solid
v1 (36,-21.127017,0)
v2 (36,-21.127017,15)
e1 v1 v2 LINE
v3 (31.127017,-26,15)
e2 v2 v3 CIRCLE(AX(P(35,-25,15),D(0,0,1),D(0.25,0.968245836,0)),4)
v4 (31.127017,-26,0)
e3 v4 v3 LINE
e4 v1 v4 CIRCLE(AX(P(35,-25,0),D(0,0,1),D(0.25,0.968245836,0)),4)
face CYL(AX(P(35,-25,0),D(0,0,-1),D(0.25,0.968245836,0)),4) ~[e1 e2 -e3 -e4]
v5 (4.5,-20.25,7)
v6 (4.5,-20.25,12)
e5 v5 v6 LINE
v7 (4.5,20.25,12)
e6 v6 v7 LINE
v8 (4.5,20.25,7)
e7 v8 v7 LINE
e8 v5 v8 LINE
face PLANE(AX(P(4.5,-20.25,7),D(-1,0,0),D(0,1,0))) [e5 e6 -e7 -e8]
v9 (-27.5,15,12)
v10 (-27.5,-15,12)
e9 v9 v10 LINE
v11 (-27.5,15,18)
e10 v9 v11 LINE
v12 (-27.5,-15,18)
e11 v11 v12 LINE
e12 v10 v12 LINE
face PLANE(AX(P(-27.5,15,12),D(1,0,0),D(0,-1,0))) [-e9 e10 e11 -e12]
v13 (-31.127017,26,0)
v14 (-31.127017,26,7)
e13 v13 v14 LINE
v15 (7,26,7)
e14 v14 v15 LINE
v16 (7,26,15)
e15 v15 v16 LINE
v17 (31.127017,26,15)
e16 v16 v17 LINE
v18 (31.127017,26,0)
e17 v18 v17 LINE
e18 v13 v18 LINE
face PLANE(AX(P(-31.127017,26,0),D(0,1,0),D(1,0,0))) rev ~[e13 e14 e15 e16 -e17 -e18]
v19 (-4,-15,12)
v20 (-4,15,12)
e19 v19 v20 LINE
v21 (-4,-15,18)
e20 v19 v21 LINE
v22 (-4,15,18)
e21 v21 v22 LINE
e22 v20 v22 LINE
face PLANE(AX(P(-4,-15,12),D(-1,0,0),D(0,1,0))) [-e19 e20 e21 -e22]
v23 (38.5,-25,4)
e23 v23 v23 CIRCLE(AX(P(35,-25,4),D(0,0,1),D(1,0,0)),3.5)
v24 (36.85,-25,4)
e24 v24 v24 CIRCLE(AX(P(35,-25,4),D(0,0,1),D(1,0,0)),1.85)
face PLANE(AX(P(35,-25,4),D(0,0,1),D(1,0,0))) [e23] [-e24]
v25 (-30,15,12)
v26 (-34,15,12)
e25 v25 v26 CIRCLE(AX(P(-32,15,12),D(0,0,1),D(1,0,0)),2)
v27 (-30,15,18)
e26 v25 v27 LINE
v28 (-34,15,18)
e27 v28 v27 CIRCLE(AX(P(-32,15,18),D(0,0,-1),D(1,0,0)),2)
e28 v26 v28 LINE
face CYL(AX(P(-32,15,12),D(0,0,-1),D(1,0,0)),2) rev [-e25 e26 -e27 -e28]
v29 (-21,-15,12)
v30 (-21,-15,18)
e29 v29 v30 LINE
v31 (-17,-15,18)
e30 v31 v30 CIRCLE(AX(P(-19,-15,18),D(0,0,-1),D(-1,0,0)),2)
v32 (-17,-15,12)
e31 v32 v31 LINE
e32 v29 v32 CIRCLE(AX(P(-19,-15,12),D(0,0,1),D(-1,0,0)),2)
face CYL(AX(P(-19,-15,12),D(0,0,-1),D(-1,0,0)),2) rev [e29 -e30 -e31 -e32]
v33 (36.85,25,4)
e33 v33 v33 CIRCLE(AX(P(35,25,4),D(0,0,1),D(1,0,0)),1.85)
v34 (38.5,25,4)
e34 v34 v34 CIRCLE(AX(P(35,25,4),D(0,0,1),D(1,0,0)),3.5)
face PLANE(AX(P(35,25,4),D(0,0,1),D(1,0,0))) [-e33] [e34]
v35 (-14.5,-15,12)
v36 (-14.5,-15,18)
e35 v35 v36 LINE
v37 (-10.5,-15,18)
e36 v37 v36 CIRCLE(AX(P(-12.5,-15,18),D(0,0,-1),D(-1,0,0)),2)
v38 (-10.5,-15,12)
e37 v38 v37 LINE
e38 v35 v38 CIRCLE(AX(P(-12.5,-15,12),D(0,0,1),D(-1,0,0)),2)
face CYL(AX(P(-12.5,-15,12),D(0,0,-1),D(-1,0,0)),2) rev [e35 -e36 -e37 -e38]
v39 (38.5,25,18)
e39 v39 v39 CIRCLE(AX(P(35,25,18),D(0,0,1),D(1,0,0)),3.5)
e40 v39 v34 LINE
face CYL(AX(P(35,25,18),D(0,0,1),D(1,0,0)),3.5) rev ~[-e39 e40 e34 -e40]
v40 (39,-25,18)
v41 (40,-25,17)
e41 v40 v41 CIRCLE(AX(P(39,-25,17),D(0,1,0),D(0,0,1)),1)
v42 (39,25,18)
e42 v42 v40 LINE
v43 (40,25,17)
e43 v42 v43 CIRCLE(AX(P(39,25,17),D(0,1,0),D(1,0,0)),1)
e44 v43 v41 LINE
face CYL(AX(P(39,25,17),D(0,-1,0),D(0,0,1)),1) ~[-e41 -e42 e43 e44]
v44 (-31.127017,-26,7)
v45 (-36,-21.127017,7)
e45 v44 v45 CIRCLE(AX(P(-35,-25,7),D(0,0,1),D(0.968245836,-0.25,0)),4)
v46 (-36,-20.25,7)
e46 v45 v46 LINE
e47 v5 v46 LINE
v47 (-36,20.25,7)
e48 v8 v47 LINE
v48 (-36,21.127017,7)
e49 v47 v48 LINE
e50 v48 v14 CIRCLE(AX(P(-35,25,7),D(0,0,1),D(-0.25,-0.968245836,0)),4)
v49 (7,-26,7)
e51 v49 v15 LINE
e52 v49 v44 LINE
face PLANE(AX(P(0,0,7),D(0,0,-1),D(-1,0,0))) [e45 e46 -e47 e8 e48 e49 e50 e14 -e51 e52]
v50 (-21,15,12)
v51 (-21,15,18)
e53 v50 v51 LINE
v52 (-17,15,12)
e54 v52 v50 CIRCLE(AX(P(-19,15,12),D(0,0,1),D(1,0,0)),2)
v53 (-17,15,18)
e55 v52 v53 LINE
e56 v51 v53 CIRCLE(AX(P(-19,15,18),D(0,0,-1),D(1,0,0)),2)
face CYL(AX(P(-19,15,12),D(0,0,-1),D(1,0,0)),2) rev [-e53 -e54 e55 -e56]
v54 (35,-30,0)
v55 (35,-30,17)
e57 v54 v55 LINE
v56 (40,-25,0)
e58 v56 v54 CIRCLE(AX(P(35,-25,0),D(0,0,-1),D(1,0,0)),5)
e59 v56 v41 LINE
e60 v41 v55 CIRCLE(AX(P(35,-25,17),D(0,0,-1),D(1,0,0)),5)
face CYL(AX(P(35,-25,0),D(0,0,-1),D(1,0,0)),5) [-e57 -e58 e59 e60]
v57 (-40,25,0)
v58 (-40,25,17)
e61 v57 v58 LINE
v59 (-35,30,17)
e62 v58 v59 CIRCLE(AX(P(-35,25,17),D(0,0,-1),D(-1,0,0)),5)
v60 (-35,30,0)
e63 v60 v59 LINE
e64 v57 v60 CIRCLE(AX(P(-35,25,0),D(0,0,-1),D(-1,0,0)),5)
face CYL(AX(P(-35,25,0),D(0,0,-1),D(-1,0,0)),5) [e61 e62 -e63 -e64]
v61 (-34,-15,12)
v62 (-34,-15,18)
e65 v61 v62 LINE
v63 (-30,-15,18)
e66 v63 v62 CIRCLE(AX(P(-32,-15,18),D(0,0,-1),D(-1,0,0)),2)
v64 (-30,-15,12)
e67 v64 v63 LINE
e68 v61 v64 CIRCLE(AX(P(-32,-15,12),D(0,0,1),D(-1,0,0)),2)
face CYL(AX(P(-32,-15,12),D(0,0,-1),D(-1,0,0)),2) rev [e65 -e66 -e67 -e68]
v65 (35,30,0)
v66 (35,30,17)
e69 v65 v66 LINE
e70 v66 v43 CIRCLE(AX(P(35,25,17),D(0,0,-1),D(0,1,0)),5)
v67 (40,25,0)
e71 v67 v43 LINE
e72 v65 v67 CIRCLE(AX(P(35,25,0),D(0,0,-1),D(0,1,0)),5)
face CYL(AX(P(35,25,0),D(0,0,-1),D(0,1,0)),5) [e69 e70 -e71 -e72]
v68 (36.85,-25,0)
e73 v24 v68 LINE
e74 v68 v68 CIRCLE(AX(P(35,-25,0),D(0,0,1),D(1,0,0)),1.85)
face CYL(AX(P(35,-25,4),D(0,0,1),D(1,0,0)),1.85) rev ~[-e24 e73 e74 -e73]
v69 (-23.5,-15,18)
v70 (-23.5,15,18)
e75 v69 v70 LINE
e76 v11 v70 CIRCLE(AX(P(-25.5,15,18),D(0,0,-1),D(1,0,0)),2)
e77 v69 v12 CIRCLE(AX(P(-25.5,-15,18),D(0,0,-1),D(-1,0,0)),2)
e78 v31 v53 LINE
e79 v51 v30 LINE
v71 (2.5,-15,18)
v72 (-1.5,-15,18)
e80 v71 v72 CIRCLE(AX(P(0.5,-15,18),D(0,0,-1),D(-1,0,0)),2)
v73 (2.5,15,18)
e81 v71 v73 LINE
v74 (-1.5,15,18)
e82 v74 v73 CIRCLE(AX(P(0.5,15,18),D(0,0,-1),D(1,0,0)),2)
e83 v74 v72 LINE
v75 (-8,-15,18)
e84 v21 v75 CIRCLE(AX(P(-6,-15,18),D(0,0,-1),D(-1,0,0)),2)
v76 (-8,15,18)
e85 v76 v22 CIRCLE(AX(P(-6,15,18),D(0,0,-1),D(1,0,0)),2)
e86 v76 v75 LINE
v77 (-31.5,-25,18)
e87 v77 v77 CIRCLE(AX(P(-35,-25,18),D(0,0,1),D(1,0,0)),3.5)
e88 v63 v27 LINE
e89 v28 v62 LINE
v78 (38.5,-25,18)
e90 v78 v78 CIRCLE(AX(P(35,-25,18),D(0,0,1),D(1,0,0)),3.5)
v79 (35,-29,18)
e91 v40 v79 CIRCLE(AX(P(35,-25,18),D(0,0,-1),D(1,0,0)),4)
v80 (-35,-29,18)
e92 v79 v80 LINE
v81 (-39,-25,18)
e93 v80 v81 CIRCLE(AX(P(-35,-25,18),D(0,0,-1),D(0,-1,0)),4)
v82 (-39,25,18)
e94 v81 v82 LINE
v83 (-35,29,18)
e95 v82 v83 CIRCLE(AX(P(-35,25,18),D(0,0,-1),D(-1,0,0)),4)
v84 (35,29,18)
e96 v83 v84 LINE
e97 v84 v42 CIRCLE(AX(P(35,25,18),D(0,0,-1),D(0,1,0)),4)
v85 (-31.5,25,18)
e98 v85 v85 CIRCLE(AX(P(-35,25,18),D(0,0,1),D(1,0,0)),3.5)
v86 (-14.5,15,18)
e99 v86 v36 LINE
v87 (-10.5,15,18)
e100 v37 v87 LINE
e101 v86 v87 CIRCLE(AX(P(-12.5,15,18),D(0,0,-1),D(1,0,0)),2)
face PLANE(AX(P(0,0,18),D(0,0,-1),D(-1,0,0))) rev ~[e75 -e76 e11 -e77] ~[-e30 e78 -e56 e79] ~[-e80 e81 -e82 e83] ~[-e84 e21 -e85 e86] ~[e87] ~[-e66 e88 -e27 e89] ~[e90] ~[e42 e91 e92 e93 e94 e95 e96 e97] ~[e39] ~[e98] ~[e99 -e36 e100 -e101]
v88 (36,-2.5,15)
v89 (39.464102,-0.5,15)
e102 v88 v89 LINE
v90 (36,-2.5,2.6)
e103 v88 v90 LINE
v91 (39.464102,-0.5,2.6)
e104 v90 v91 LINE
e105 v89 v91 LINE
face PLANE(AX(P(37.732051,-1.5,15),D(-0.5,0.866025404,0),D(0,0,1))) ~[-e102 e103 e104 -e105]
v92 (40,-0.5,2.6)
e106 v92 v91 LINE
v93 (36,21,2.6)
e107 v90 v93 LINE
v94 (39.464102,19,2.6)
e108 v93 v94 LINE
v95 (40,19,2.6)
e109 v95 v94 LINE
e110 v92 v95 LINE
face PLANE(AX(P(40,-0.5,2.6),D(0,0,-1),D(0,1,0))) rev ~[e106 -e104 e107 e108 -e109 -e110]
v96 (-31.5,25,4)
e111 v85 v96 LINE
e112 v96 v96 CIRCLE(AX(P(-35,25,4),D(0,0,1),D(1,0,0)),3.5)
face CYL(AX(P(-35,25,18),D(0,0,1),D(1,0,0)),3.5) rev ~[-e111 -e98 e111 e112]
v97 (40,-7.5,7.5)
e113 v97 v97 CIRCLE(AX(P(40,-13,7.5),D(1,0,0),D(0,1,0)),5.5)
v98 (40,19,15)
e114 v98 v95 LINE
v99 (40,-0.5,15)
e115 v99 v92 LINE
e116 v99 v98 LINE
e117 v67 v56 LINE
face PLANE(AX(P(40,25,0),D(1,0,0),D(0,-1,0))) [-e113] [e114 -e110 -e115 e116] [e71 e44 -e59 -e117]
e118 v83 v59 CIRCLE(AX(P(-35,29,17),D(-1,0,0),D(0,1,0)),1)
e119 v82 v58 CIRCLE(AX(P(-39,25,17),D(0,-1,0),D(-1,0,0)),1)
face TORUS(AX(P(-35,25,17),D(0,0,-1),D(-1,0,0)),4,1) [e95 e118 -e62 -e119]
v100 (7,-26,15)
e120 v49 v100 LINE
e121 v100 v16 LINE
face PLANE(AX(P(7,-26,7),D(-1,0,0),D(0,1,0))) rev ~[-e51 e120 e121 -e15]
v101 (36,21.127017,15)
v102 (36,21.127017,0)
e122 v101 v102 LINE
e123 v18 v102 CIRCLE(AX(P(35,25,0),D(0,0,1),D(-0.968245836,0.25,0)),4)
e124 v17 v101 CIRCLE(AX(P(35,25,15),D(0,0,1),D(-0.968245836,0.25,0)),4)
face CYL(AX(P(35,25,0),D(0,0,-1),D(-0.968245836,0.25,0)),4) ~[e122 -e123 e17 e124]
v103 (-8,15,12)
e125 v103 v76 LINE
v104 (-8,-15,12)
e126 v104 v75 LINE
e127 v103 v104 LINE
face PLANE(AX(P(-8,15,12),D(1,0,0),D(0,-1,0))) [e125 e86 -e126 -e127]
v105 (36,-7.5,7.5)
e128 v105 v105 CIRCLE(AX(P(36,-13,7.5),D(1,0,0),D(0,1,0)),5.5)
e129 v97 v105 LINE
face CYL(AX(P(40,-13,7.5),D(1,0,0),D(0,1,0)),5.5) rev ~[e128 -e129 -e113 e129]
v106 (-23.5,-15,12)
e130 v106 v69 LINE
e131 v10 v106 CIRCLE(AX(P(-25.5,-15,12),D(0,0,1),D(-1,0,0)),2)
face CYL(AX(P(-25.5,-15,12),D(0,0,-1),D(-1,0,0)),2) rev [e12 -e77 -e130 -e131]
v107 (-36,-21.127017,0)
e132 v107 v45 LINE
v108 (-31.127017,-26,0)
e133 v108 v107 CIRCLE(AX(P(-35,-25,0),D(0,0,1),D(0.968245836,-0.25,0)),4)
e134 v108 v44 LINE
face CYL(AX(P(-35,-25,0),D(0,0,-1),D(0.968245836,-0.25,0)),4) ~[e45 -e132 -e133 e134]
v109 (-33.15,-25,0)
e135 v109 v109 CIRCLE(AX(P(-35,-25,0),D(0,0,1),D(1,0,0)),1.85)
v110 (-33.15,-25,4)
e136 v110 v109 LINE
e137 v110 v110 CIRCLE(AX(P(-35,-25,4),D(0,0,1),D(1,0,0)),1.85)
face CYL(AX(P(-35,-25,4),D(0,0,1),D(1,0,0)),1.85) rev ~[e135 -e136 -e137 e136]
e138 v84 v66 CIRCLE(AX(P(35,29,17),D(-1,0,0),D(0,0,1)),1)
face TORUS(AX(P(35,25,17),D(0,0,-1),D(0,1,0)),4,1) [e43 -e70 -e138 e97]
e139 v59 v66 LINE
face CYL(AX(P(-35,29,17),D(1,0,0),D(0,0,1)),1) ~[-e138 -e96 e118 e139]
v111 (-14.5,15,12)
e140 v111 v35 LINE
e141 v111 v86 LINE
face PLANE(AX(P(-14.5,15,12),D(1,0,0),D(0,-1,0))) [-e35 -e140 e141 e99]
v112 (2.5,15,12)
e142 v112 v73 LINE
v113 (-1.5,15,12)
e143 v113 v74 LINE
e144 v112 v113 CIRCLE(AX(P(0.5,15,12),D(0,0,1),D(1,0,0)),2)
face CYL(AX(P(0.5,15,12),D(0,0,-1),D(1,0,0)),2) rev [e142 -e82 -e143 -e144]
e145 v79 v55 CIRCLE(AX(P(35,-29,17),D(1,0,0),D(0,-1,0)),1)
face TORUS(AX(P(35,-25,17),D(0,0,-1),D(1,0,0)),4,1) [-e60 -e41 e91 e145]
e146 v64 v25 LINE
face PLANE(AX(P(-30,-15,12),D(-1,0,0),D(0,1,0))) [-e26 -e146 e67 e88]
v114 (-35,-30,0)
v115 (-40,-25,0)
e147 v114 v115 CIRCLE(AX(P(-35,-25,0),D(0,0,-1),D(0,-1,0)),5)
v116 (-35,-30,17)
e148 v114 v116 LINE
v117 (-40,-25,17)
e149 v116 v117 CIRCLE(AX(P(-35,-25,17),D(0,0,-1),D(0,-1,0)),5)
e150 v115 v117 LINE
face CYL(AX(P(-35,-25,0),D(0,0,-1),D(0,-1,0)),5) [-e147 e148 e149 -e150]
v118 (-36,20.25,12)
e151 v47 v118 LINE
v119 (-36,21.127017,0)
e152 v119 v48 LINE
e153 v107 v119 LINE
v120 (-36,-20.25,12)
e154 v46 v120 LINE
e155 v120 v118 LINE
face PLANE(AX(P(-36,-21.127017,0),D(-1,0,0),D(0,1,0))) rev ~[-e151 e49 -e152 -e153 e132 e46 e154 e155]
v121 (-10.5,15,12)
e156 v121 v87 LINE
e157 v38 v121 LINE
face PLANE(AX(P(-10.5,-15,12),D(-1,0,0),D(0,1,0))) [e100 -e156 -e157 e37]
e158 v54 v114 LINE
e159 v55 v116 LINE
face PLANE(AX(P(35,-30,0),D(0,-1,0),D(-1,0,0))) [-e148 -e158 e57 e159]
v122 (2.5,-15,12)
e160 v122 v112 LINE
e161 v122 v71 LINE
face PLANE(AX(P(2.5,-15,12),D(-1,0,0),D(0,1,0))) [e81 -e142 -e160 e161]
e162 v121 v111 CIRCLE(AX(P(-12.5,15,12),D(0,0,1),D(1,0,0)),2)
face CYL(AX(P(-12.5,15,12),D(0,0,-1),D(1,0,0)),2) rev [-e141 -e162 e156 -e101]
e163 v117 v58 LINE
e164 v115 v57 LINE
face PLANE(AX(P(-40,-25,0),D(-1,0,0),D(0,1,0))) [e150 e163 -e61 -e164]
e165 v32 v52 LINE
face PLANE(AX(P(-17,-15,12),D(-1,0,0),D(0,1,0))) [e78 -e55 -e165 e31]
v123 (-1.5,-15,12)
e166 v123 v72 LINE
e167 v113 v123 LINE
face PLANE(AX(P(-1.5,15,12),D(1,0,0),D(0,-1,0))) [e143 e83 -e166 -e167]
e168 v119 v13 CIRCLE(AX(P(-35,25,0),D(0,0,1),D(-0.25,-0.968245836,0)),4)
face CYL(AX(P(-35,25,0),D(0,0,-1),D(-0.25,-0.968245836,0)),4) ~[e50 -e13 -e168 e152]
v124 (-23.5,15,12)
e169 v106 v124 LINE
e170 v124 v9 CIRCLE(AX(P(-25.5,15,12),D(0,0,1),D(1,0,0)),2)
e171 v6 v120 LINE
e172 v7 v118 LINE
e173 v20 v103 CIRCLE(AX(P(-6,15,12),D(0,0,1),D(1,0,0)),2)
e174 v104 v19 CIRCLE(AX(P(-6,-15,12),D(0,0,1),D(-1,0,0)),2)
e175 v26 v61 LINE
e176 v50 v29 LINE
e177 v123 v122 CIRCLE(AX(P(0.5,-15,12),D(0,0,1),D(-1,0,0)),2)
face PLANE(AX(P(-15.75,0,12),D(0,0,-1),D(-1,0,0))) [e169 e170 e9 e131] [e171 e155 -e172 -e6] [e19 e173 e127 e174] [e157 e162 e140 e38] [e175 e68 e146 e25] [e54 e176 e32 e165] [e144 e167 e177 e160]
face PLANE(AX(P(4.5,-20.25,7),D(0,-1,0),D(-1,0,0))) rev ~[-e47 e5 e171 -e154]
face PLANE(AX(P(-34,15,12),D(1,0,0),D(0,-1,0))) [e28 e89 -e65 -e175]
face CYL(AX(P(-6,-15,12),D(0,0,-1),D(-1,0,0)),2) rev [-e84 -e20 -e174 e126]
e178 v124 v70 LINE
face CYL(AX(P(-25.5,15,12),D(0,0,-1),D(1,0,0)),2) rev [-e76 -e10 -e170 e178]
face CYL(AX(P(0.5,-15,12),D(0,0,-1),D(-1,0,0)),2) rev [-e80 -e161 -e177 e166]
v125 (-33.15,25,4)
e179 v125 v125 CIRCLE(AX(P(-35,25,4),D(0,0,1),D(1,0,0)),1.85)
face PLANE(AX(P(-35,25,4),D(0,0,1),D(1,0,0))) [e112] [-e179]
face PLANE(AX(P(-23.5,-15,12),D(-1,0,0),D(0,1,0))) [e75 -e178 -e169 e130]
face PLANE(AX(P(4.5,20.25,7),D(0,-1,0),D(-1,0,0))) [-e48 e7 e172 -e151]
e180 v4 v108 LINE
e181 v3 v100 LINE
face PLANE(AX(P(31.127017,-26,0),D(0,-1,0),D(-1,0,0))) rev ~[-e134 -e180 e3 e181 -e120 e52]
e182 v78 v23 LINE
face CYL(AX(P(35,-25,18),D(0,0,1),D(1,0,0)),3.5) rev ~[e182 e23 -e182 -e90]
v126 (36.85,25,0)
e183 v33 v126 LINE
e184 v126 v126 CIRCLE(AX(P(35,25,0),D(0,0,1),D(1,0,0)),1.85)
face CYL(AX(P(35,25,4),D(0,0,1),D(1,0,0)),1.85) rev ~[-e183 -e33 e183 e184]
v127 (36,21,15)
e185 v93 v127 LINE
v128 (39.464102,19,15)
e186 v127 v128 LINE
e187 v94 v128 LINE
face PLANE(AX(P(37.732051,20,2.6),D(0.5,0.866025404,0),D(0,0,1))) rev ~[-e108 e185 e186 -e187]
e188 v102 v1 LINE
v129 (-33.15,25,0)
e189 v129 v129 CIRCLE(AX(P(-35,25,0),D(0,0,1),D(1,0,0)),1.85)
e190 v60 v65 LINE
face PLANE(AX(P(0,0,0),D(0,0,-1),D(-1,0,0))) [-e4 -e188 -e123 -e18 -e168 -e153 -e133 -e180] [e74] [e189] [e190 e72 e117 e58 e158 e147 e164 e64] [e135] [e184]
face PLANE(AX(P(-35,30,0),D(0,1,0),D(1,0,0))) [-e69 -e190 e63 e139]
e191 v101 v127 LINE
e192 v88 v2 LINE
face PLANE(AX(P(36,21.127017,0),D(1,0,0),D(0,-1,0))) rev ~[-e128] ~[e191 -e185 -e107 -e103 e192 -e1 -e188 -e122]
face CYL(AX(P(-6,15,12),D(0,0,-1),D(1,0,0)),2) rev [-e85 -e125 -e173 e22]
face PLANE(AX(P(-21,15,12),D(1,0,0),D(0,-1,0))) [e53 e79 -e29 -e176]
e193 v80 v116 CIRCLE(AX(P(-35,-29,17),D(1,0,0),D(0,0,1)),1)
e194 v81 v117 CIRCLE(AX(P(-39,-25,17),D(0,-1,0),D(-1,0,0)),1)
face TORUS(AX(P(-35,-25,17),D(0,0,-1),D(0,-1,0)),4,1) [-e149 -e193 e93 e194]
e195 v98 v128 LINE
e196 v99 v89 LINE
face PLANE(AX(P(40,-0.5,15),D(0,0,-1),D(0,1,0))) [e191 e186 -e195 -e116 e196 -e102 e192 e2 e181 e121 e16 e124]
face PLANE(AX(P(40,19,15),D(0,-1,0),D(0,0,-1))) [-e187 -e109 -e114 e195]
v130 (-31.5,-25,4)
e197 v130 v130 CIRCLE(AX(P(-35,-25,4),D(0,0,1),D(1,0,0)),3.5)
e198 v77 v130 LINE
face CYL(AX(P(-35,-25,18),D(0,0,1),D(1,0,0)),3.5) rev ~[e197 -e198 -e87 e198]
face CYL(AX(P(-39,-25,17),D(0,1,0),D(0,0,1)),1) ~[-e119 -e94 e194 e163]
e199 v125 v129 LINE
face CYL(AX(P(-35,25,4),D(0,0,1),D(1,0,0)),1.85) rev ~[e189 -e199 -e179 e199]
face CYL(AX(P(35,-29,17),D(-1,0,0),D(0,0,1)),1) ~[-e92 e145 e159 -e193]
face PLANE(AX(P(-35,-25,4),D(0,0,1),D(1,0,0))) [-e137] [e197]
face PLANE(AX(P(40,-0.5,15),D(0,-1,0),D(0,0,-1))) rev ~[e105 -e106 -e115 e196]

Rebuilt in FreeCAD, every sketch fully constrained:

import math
import FreeCAD as App
import Part
import Sketcher

V = App.Vector
Q = App.Units.Quantity


def edges_at(feature, points):
    """Names of the edges that pass closest to the given points."""
    edges = feature.Shape.Edges
    near = lambda p: min(range(len(edges)), key=lambda i: edges[i].distToShape(Part.Vertex(*p))[0])
    return sorted({f"Edge{near(p) + 1}" for p in points})

doc = App.newDocument("Part")
body = doc.addObject("PartDesign::Body", "Body")

# Sketch on XY plane
sketch1 = body.newObject("Sketcher::SketchObject", "Sketch")
sketch1.AttachmentSupport = (doc.getObject("XY_Plane"), [""])
sketch1.MapMode = "FlatFace"
sketch1.addGeometry(Part.LineSegment(V(35, 30, 0), V(-35, 30, 0)), False)
sketch1.addGeometry(Part.ArcOfCircle(Part.Circle(V(-35, 25, 0), V(0, 0, 1), 5), math.radians(90), math.radians(180)), False)
sketch1.addGeometry(Part.LineSegment(V(-40, 25, 0), V(-40, -25, 0)), False)
sketch1.addGeometry(Part.ArcOfCircle(Part.Circle(V(-35, -25, 0), V(0, 0, 1), 5), math.radians(180), math.radians(270)), False)
sketch1.addGeometry(Part.LineSegment(V(-35, -30, 0), V(35, -30, 0)), False)
sketch1.addGeometry(Part.ArcOfCircle(Part.Circle(V(35, -25, 0), V(0, 0, 1), 5), math.radians(-90), math.radians(0)), False)
sketch1.addGeometry(Part.LineSegment(V(40, -25, 0), V(40, 25, 0)), False)
sketch1.addGeometry(Part.ArcOfCircle(Part.Circle(V(35, 25, 0), V(0, 0, 1), 5), math.radians(0), math.radians(90)), False)
sketch1.addConstraint(Sketcher.Constraint("Tangent", 0, 2, 1, 1))
sketch1.addConstraint(Sketcher.Constraint("Tangent", 1, 2, 2, 1))
sketch1.addConstraint(Sketcher.Constraint("Tangent", 2, 2, 3, 1))
sketch1.addConstraint(Sketcher.Constraint("Tangent", 3, 2, 4, 1))
sketch1.addConstraint(Sketcher.Constraint("Tangent", 4, 2, 5, 1))
sketch1.addConstraint(Sketcher.Constraint("Tangent", 5, 2, 6, 1))
sketch1.addConstraint(Sketcher.Constraint("Tangent", 6, 2, 7, 1))
sketch1.addConstraint(Sketcher.Constraint("Tangent", 7, 2, 0, 1))
sketch1.addConstraint(Sketcher.Constraint("Horizontal", 0))
sketch1.addConstraint(Sketcher.Constraint("Vertical", 2))
sketch1.addConstraint(Sketcher.Constraint("Horizontal", 4))
sketch1.addConstraint(Sketcher.Constraint("Vertical", 6))
sketch1.addConstraint(Sketcher.Constraint("Equal", 1, 3))
sketch1.addConstraint(Sketcher.Constraint("Equal", 3, 5))
sketch1.addConstraint(Sketcher.Constraint("Equal", 5, 7))
sketch1.addConstraint(Sketcher.Constraint("Symmetric", 1, 3, 5, 3, -1, 1))
sketch1.addConstraint(Sketcher.Constraint("Radius", 1, Q("5 mm")))
sketch1.addConstraint(Sketcher.Constraint("DistanceX", 0, 2, 0, 1, Q("70 mm")))
sketch1.addConstraint(Sketcher.Constraint("DistanceY", 2, 2, 2, 1, Q("50 mm")))
pad1 = body.newObject("PartDesign::Pad", "Pad")
pad1.Profile = sketch1
pad1.Length = 18

# Sketch on XY plane
sketch2 = body.newObject("Sketcher::SketchObject", "Sketch001")
sketch2.AttachmentSupport = (doc.getObject("XY_Plane"), [""])
sketch2.MapMode = "FlatFace"
sketch2.addGeometry(Part.LineSegment(V(36, 21.127017, 0), V(36, -21.127017, 0)), False)
sketch2.addGeometry(Part.ArcOfCircle(Part.Circle(V(35, -25, 0), V(0, 0, 1), 4), math.radians(75.522488), math.radians(194.477512)), False)
sketch2.addGeometry(Part.LineSegment(V(31.127017, -26, 0), V(-31.127017, -26, 0)), False)
sketch2.addGeometry(Part.ArcOfCircle(Part.Circle(V(-35, -25, 0), V(0, 0, 1), 4), math.radians(-14.477512), math.radians(104.477512)), False)
sketch2.addGeometry(Part.LineSegment(V(-36, -21.127017, 0), V(-36, 21.127017, 0)), False)
sketch2.addGeometry(Part.ArcOfCircle(Part.Circle(V(-35, 25, 0), V(0, 0, 1), 4), math.radians(-104.477512), math.radians(14.477512)), False)
sketch2.addGeometry(Part.LineSegment(V(-31.127017, 26, 0), V(31.127017, 26, 0)), False)
sketch2.addGeometry(Part.ArcOfCircle(Part.Circle(V(35, 25, 0), V(0, 0, 1), 4), math.radians(165.522488), math.radians(284.477512)), False)
sketch2.addConstraint(Sketcher.Constraint("Coincident", 0, 2, 1, 1))
sketch2.addConstraint(Sketcher.Constraint("Coincident", 1, 2, 2, 1))
sketch2.addConstraint(Sketcher.Constraint("Coincident", 2, 2, 3, 1))
sketch2.addConstraint(Sketcher.Constraint("Coincident", 3, 2, 4, 1))
sketch2.addConstraint(Sketcher.Constraint("Coincident", 4, 2, 5, 1))
sketch2.addConstraint(Sketcher.Constraint("Coincident", 5, 2, 6, 1))
sketch2.addConstraint(Sketcher.Constraint("Coincident", 6, 2, 7, 1))
sketch2.addConstraint(Sketcher.Constraint("Coincident", 7, 2, 0, 1))
sketch2.addConstraint(Sketcher.Constraint("Vertical", 0))
sketch2.addConstraint(Sketcher.Constraint("Horizontal", 2))
sketch2.addConstraint(Sketcher.Constraint("Vertical", 4))
sketch2.addConstraint(Sketcher.Constraint("Horizontal", 6))
sketch2.addConstraint(Sketcher.Constraint("Equal", 1, 3))
sketch2.addConstraint(Sketcher.Constraint("Equal", 3, 5))
sketch2.addConstraint(Sketcher.Constraint("Equal", 5, 7))
sketch2.addConstraint(Sketcher.Constraint("Symmetric", 1, 3, 5, 3, -1, 1))
sketch2.addConstraint(Sketcher.Constraint("Symmetric", 3, 3, 7, 3, -1, 1))
sketch2.addConstraint(Sketcher.Constraint("Symmetric", 1, 3, 3, 3, -2))
sketch2.addConstraint(Sketcher.Constraint("Horizontal", 0, 2, 3, 2))
sketch2.addConstraint(Sketcher.Constraint("Vertical", 2, 2, 5, 2))
sketch2.addConstraint(Sketcher.Constraint("Radius", 1, Q("4 mm")))
sketch2.addConstraint(Sketcher.Constraint("DistanceX", -1, 1, 1, 3, Q("35 mm")))
sketch2.addConstraint(Sketcher.Constraint("DistanceY", 1, 3, -1, 1, Q("25 mm")))
sketch2.addConstraint(Sketcher.Constraint("DistanceX", -1, 1, 0, 2, Q("36 mm")))
sketch2.addConstraint(Sketcher.Constraint("DistanceY", 1, 2, -1, 1, Q("26 mm")))
pocket1 = body.newObject("PartDesign::Pocket", "Pocket")
pocket1.Profile = sketch2
pocket1.Length = 7
pocket1.Reversed = True

# Sketch on YZ plane
sketch3 = body.newObject("Sketcher::SketchObject", "Sketch002")
sketch3.AttachmentSupport = (doc.getObject("YZ_Plane"), [""])
sketch3.MapMode = "FlatFace"
sketch3.AttachmentOffset = App.Placement(V(0, 0, 40), App.Rotation())
sketch3.addGeometry(Part.Circle(V(-13, 7.5, 0), V(0, 0, 1), 5.5), False)
sketch3.addGeometry(Part.LineSegment(V(19, 15, 0), V(-0.5, 15, 0)), False)
sketch3.addGeometry(Part.LineSegment(V(-0.5, 15, 0), V(-0.5, 2.6, 0)), False)
sketch3.addGeometry(Part.LineSegment(V(-0.5, 2.6, 0), V(19, 2.6, 0)), False)
sketch3.addGeometry(Part.LineSegment(V(19, 2.6, 0), V(19, 15, 0)), False)
sketch3.addConstraint(Sketcher.Constraint("Coincident", 1, 2, 2, 1))
sketch3.addConstraint(Sketcher.Constraint("Coincident", 2, 2, 3, 1))
sketch3.addConstraint(Sketcher.Constraint("Coincident", 3, 2, 4, 1))
sketch3.addConstraint(Sketcher.Constraint("Coincident", 4, 2, 1, 1))
sketch3.addConstraint(Sketcher.Constraint("Horizontal", 1))
sketch3.addConstraint(Sketcher.Constraint("Vertical", 2))
sketch3.addConstraint(Sketcher.Constraint("Horizontal", 3))
sketch3.addConstraint(Sketcher.Constraint("Vertical", 4))
sketch3.addConstraint(Sketcher.Constraint("Diameter", 0, Q("11 mm")))
sketch3.addConstraint(Sketcher.Constraint("DistanceX", 1, 2, 1, 1, Q("19.5 mm")))
sketch3.addConstraint(Sketcher.Constraint("DistanceY", 2, 2, 2, 1, Q("12.4 mm")))
sketch3.addConstraint(Sketcher.Constraint("DistanceX", 0, 3, -1, 1, Q("13 mm")))
sketch3.addConstraint(Sketcher.Constraint("DistanceY", -1, 1, 1, 2, Q("15 mm")))
sketch3.addConstraint(Sketcher.Constraint("DistanceX", -1, 1, 3, 2, Q("19 mm")))
sketch3.addConstraint(Sketcher.Constraint("DistanceY", -1, 1, 0, 3, Q("7.5 mm")))
pocket2 = body.newObject("PartDesign::Pocket", "Pocket001")
pocket2.Profile = sketch3
pocket2.Length = 22

# Sketch on XY plane
sketch4 = body.newObject("Sketcher::SketchObject", "Sketch003")
sketch4.AttachmentSupport = (doc.getObject("XY_Plane"), [""])
sketch4.MapMode = "FlatFace"
sketch4.AttachmentOffset = App.Placement(V(0, 0, 7), App.Rotation())
sketch4.addGeometry(Part.LineSegment(V(31.127017, -26, 0), V(7, -26, 0)), False)
sketch4.addGeometry(Part.LineSegment(V(7, -26, 0), V(7, 26, 0)), False)
sketch4.addGeometry(Part.LineSegment(V(7, 26, 0), V(31.127017, 26, 0)), False)
sketch4.addGeometry(Part.ArcOfCircle(Part.Circle(V(35, 25, 0), V(0, 0, 1), 4), math.radians(165.522488), math.radians(284.477512)), False)
sketch4.addGeometry(Part.LineSegment(V(36, 21.127017, 0), V(36, -21.127017, 0)), False)
sketch4.addGeometry(Part.ArcOfCircle(Part.Circle(V(35, -25, 0), V(0, 0, 1), 4), math.radians(75.522488), math.radians(194.477512)), False)
sketch4.addConstraint(Sketcher.Constraint("Coincident", 0, 2, 1, 1))
sketch4.addConstraint(Sketcher.Constraint("Coincident", 1, 2, 2, 1))
sketch4.addConstraint(Sketcher.Constraint("Coincident", 2, 2, 3, 1))
sketch4.addConstraint(Sketcher.Constraint("Coincident", 3, 2, 4, 1))
sketch4.addConstraint(Sketcher.Constraint("Coincident", 4, 2, 5, 1))
sketch4.addConstraint(Sketcher.Constraint("Coincident", 5, 2, 0, 1))
sketch4.addConstraint(Sketcher.Constraint("Horizontal", 0))
sketch4.addConstraint(Sketcher.Constraint("Vertical", 1))
sketch4.addConstraint(Sketcher.Constraint("Horizontal", 2))
sketch4.addConstraint(Sketcher.Constraint("Vertical", 4))
sketch4.addConstraint(Sketcher.Constraint("Equal", 3, 5))
sketch4.addConstraint(Sketcher.Constraint("Symmetric", 3, 3, 5, 3, -1))
sketch4.addConstraint(Sketcher.Constraint("Vertical", 2, 2, 5, 2))
sketch4.addConstraint(Sketcher.Constraint("Radius", 3, Q("4 mm")))
sketch4.addConstraint(Sketcher.Constraint("DistanceY", 1, 1, 1, 2, Q("52 mm")))
sketch4.addConstraint(Sketcher.Constraint("DistanceX", -1, 1, 3, 3, Q("35 mm")))
sketch4.addConstraint(Sketcher.Constraint("DistanceY", -1, 1, 3, 3, Q("25 mm")))
sketch4.addConstraint(Sketcher.Constraint("DistanceX", -1, 1, 0, 2, Q("7 mm")))
sketch4.addConstraint(Sketcher.Constraint("DistanceX", -1, 1, 3, 2, Q("36 mm")))
pocket3 = body.newObject("PartDesign::Pocket", "Pocket002")
pocket3.Profile = sketch4
pocket3.Length = 8
pocket3.Reversed = True
doc.recompute()

fillet = body.newObject("PartDesign::Fillet", "Fillet")
fillet.Base = (pocket3, edges_at(pocket3, [
    (-38.536, 28.536, 18),
    (-40, 0, 18),
    (-38.536, -28.536, 18),
    (0, -30, 18),
    (38.536, -28.536, 18),
    (40, 0, 18),
    (38.536, 28.536, 18),
    (0, 30, 18),
]))
fillet.Radius = 1

# Sketch on XY plane
sketch5 = body.newObject("Sketcher::SketchObject", "Sketch004")
sketch5.AttachmentSupport = (doc.getObject("XY_Plane"), [""])
sketch5.MapMode = "FlatFace"
sketch5.AttachmentOffset = App.Placement(V(0, 0, 7), App.Rotation())
sketch5.addGeometry(Part.LineSegment(V(4.5, 20.25, 0), V(4.5, -20.25, 0)), False)
sketch5.addGeometry(Part.LineSegment(V(4.5, -20.25, 0), V(-36, -20.25, 0)), False)
sketch5.addGeometry(Part.LineSegment(V(-36, -20.25, 0), V(-36, 20.25, 0)), False)
sketch5.addGeometry(Part.LineSegment(V(-36, 20.25, 0), V(4.5, 20.25, 0)), False)
sketch5.addConstraint(Sketcher.Constraint("Coincident", 0, 2, 1, 1))
sketch5.addConstraint(Sketcher.Constraint("Coincident", 1, 2, 2, 1))
sketch5.addConstraint(Sketcher.Constraint("Coincident", 2, 2, 3, 1))
sketch5.addConstraint(Sketcher.Constraint("Coincident", 3, 2, 0, 1))
sketch5.addConstraint(Sketcher.Constraint("Vertical", 0))
sketch5.addConstraint(Sketcher.Constraint("Horizontal", 1))
sketch5.addConstraint(Sketcher.Constraint("Vertical", 2))
sketch5.addConstraint(Sketcher.Constraint("Horizontal", 3))
sketch5.addConstraint(Sketcher.Constraint("Equal", 3, 0))
sketch5.addConstraint(Sketcher.Constraint("DistanceX", 1, 2, 1, 1, Q("40.5 mm")))
sketch5.addConstraint(Sketcher.Constraint("DistanceX", 1, 2, -1, 1, Q("36 mm")))
sketch5.addConstraint(Sketcher.Constraint("DistanceY", 0, 2, -1, 1, Q("20.25 mm")))
pocket4 = body.newObject("PartDesign::Pocket", "Pocket003")
pocket4.Profile = sketch5
pocket4.Length = 5
pocket4.Reversed = True

# Sketch on XY plane
sketch6 = body.newObject("Sketcher::SketchObject", "Sketch005")
sketch6.AttachmentSupport = (doc.getObject("XY_Plane"), [""])
sketch6.MapMode = "FlatFace"
sketch6.AttachmentOffset = App.Placement(V(0, 0, 12), App.Rotation())
sketch6.addGeometry(Part.LineSegment(V(-1.5, -15, 0), V(-1.5, 15, 0)), False)
sketch6.addGeometry(Part.ArcOfCircle(Part.Circle(V(0.5, 15, 0), V(0, 0, 1), 2), math.radians(0), math.radians(180)), False)
sketch6.addGeometry(Part.LineSegment(V(2.5, 15, 0), V(2.5, -15, 0)), False)
sketch6.addGeometry(Part.ArcOfCircle(Part.Circle(V(0.5, -15, 0), V(0, 0, 1), 2), math.radians(180), math.radians(360)), False)
sketch6.addGeometry(Part.LineSegment(V(-8, -15, 0), V(-8, 15, 0)), False)
sketch6.addGeometry(Part.ArcOfCircle(Part.Circle(V(-6, 15, 0), V(0, 0, 1), 2), math.radians(0), math.radians(180)), False)
sketch6.addGeometry(Part.LineSegment(V(-4, 15, 0), V(-4, -15, 0)), False)
sketch6.addGeometry(Part.ArcOfCircle(Part.Circle(V(-6, -15, 0), V(0, 0, 1), 2), math.radians(180), math.radians(360)), False)
sketch6.addGeometry(Part.LineSegment(V(-14.5, -15, 0), V(-14.5, 15, 0)), False)
sketch6.addGeometry(Part.ArcOfCircle(Part.Circle(V(-12.5, 15, 0), V(0, 0, 1), 2), math.radians(0), math.radians(180)), False)
sketch6.addGeometry(Part.LineSegment(V(-10.5, 15, 0), V(-10.5, -15, 0)), False)
sketch6.addGeometry(Part.ArcOfCircle(Part.Circle(V(-12.5, -15, 0), V(0, 0, 1), 2), math.radians(180), math.radians(360)), False)
sketch6.addGeometry(Part.LineSegment(V(-21, -15, 0), V(-21, 15, 0)), False)
sketch6.addGeometry(Part.ArcOfCircle(Part.Circle(V(-19, 15, 0), V(0, 0, 1), 2), math.radians(0), math.radians(180)), False)
sketch6.addGeometry(Part.LineSegment(V(-17, 15, 0), V(-17, -15, 0)), False)
sketch6.addGeometry(Part.ArcOfCircle(Part.Circle(V(-19, -15, 0), V(0, 0, 1), 2), math.radians(180), math.radians(360)), False)
sketch6.addGeometry(Part.LineSegment(V(-27.5, -15, 0), V(-27.5, 15, 0)), False)
sketch6.addGeometry(Part.ArcOfCircle(Part.Circle(V(-25.5, 15, 0), V(0, 0, 1), 2), math.radians(0), math.radians(180)), False)
sketch6.addGeometry(Part.LineSegment(V(-23.5, 15, 0), V(-23.5, -15, 0)), False)
sketch6.addGeometry(Part.ArcOfCircle(Part.Circle(V(-25.5, -15, 0), V(0, 0, 1), 2), math.radians(180), math.radians(360)), False)
sketch6.addGeometry(Part.LineSegment(V(-34, -15, 0), V(-34, 15, 0)), False)
sketch6.addGeometry(Part.ArcOfCircle(Part.Circle(V(-32, 15, 0), V(0, 0, 1), 2), math.radians(0), math.radians(180)), False)
sketch6.addGeometry(Part.LineSegment(V(-30, 15, 0), V(-30, -15, 0)), False)
sketch6.addGeometry(Part.ArcOfCircle(Part.Circle(V(-32, -15, 0), V(0, 0, 1), 2), math.radians(180), math.radians(360)), False)
sketch6.addConstraint(Sketcher.Constraint("Tangent", 0, 2, 1, 2))
sketch6.addConstraint(Sketcher.Constraint("Tangent", 1, 1, 2, 1))
sketch6.addConstraint(Sketcher.Constraint("Tangent", 2, 2, 3, 2))
sketch6.addConstraint(Sketcher.Constraint("Tangent", 3, 1, 0, 1))
sketch6.addConstraint(Sketcher.Constraint("Tangent", 4, 2, 5, 2))
sketch6.addConstraint(Sketcher.Constraint("Tangent", 5, 1, 6, 1))
sketch6.addConstraint(Sketcher.Constraint("Tangent", 6, 2, 7, 2))
sketch6.addConstraint(Sketcher.Constraint("Tangent", 7, 1, 4, 1))
sketch6.addConstraint(Sketcher.Constraint("Tangent", 8, 2, 9, 2))
sketch6.addConstraint(Sketcher.Constraint("Tangent", 9, 1, 10, 1))
sketch6.addConstraint(Sketcher.Constraint("Tangent", 10, 2, 11, 2))
sketch6.addConstraint(Sketcher.Constraint("Tangent", 11, 1, 8, 1))
sketch6.addConstraint(Sketcher.Constraint("Tangent", 12, 2, 13, 2))
sketch6.addConstraint(Sketcher.Constraint("Tangent", 13, 1, 14, 1))
sketch6.addConstraint(Sketcher.Constraint("Tangent", 14, 2, 15, 2))
sketch6.addConstraint(Sketcher.Constraint("Tangent", 15, 1, 12, 1))
sketch6.addConstraint(Sketcher.Constraint("Tangent", 16, 2, 17, 2))
sketch6.addConstraint(Sketcher.Constraint("Tangent", 17, 1, 18, 1))
sketch6.addConstraint(Sketcher.Constraint("Tangent", 18, 2, 19, 2))
sketch6.addConstraint(Sketcher.Constraint("Tangent", 19, 1, 16, 1))
sketch6.addConstraint(Sketcher.Constraint("Tangent", 20, 2, 21, 2))
sketch6.addConstraint(Sketcher.Constraint("Tangent", 21, 1, 22, 1))
sketch6.addConstraint(Sketcher.Constraint("Tangent", 22, 2, 23, 2))
sketch6.addConstraint(Sketcher.Constraint("Tangent", 23, 1, 20, 1))
sketch6.addConstraint(Sketcher.Constraint("Vertical", 0))
sketch6.addConstraint(Sketcher.Constraint("Vertical", 2))
sketch6.addConstraint(Sketcher.Constraint("Vertical", 4))
sketch6.addConstraint(Sketcher.Constraint("Vertical", 6))
sketch6.addConstraint(Sketcher.Constraint("Vertical", 8))
sketch6.addConstraint(Sketcher.Constraint("Vertical", 10))
sketch6.addConstraint(Sketcher.Constraint("Vertical", 12))
sketch6.addConstraint(Sketcher.Constraint("Vertical", 14))
sketch6.addConstraint(Sketcher.Constraint("Vertical", 16))
sketch6.addConstraint(Sketcher.Constraint("Vertical", 18))
sketch6.addConstraint(Sketcher.Constraint("Vertical", 20))
sketch6.addConstraint(Sketcher.Constraint("Vertical", 22))
sketch6.addConstraint(Sketcher.Constraint("Equal", 3, 5))
sketch6.addConstraint(Sketcher.Constraint("Equal", 7, 9))
sketch6.addConstraint(Sketcher.Constraint("Equal", 11, 13))
sketch6.addConstraint(Sketcher.Constraint("Equal", 15, 17))
sketch6.addConstraint(Sketcher.Constraint("Equal", 19, 21))
sketch6.addConstraint(Sketcher.Constraint("Horizontal", 1, 3, 5, 3))
sketch6.addConstraint(Sketcher.Constraint("Horizontal", 3, 3, 7, 3))
sketch6.addConstraint(Sketcher.Constraint("Horizontal", 5, 3, 9, 3))
sketch6.addConstraint(Sketcher.Constraint("Horizontal", 7, 3, 11, 3))
sketch6.addConstraint(Sketcher.Constraint("Horizontal", 9, 3, 13, 3))
sketch6.addConstraint(Sketcher.Constraint("Horizontal", 11, 3, 15, 3))
sketch6.addConstraint(Sketcher.Constraint("Horizontal", 13, 3, 17, 3))
sketch6.addConstraint(Sketcher.Constraint("Horizontal", 15, 3, 19, 3))
sketch6.addConstraint(Sketcher.Constraint("Horizontal", 17, 3, 21, 3))
sketch6.addConstraint(Sketcher.Constraint("Horizontal", 19, 3, 23, 3))
sketch6.addConstraint(Sketcher.Constraint("Radius", 1, Q("2 mm")))
sketch6.addConstraint(Sketcher.Constraint("DistanceY", 0, 1, 0, 2, Q("30 mm")))
sketch6.addConstraint(Sketcher.Constraint("DistanceY", -1, 1, 1, 3, Q("15 mm")))
sketch6.addConstraint(Sketcher.Constraint("DistanceX", 5, 3, -1, 1, Q("6 mm")))
sketch6.addConstraint(Sketcher.Constraint("DistanceX", 13, 3, -1, 1, Q("19 mm")))
sketch6.addConstraint(Sketcher.Constraint("DistanceX", 21, 3, -1, 1, Q("32 mm")))
sketch6.addConstraint(Sketcher.Constraint("DistanceX", 9, 3, 1, 3, Q("13 mm")))
sketch6.addConstraint(Sketcher.Constraint("DistanceX", 17, 3, 9, 3, Q("13 mm")))
sketch6.addConstraint(Sketcher.Constraint("DistanceX", -1, 1, 1, 3, Q("0.5 mm")))
pocket5 = body.newObject("PartDesign::Pocket", "Pocket004")
pocket5.Profile = sketch6
pocket5.Type = "ThroughAll"
pocket5.Reversed = True

# Sketch on XY plane
sketch7 = body.newObject("Sketcher::SketchObject", "Sketch006")
sketch7.AttachmentSupport = (doc.getObject("XY_Plane"), [""])
sketch7.MapMode = "FlatFace"
sketch7.AttachmentOffset = App.Placement(V(0, 0, 18), App.Rotation())
sketch7.addGeometry(Part.Circle(V(-35, 25, 0), V(0, 0, 1), 3.5), False)
sketch7.addGeometry(Part.Circle(V(-35, -25, 0), V(0, 0, 1), 3.5), False)
sketch7.addGeometry(Part.Circle(V(35, -25, 0), V(0, 0, 1), 3.5), False)
sketch7.addGeometry(Part.Circle(V(35, 25, 0), V(0, 0, 1), 3.5), False)
sketch7.addConstraint(Sketcher.Constraint("Equal", 0, 1))
sketch7.addConstraint(Sketcher.Constraint("Equal", 1, 2))
sketch7.addConstraint(Sketcher.Constraint("Equal", 2, 3))
sketch7.addConstraint(Sketcher.Constraint("Symmetric", 0, 3, 2, 3, -1, 1))
sketch7.addConstraint(Sketcher.Constraint("Symmetric", 1, 3, 3, 3, -1, 1))
sketch7.addConstraint(Sketcher.Constraint("Symmetric", 1, 3, 2, 3, -2))
sketch7.addConstraint(Sketcher.Constraint("Diameter", 0, Q("7 mm")))
sketch7.addConstraint(Sketcher.Constraint("DistanceX", 0, 3, -1, 1, Q("35 mm")))
sketch7.addConstraint(Sketcher.Constraint("DistanceY", -1, 1, 0, 3, Q("25 mm")))
pocket6 = body.newObject("PartDesign::Pocket", "Pocket005")
pocket6.Profile = sketch7
pocket6.Length = 14

# Sketch on XY plane
sketch8 = body.newObject("Sketcher::SketchObject", "Sketch007")
sketch8.AttachmentSupport = (doc.getObject("XY_Plane"), [""])
sketch8.MapMode = "FlatFace"
sketch8.AttachmentOffset = App.Placement(V(0, 0, 4), App.Rotation())
sketch8.addGeometry(Part.Circle(V(35, -25, 0), V(0, 0, 1), 1.85), False)
sketch8.addGeometry(Part.Circle(V(35, 25, 0), V(0, 0, 1), 1.85), False)
sketch8.addGeometry(Part.Circle(V(-35, 25, 0), V(0, 0, 1), 1.85), False)
sketch8.addGeometry(Part.Circle(V(-35, -25, 0), V(0, 0, 1), 1.85), False)
sketch8.addConstraint(Sketcher.Constraint("Equal", 0, 1))
sketch8.addConstraint(Sketcher.Constraint("Equal", 1, 2))
sketch8.addConstraint(Sketcher.Constraint("Equal", 2, 3))
sketch8.addConstraint(Sketcher.Constraint("Symmetric", 0, 3, 2, 3, -1, 1))
sketch8.addConstraint(Sketcher.Constraint("Symmetric", 1, 3, 3, 3, -1, 1))
sketch8.addConstraint(Sketcher.Constraint("Symmetric", 1, 3, 2, 3, -2))
sketch8.addConstraint(Sketcher.Constraint("Diameter", 0, Q("3.7 mm")))
sketch8.addConstraint(Sketcher.Constraint("DistanceX", -1, 1, 0, 3, Q("35 mm")))
sketch8.addConstraint(Sketcher.Constraint("DistanceY", 0, 3, -1, 1, Q("25 mm")))
pocket7 = body.newObject("PartDesign::Pocket", "Pocket006")
pocket7.Profile = sketch8
pocket7.Type = "ThroughAll"
doc.recompute()

chamfer = body.newObject("PartDesign::Chamfer", "Chamfer")
chamfer.Base = (pocket7, edges_at(pocket7, [(36, -0.5, 8.8), (36, 19, 8.8)]))
chamfer.ChamferType = "Two distances"
chamfer.Size = 2
chamfer.Size2 = 3.464102

doc.recompute()
